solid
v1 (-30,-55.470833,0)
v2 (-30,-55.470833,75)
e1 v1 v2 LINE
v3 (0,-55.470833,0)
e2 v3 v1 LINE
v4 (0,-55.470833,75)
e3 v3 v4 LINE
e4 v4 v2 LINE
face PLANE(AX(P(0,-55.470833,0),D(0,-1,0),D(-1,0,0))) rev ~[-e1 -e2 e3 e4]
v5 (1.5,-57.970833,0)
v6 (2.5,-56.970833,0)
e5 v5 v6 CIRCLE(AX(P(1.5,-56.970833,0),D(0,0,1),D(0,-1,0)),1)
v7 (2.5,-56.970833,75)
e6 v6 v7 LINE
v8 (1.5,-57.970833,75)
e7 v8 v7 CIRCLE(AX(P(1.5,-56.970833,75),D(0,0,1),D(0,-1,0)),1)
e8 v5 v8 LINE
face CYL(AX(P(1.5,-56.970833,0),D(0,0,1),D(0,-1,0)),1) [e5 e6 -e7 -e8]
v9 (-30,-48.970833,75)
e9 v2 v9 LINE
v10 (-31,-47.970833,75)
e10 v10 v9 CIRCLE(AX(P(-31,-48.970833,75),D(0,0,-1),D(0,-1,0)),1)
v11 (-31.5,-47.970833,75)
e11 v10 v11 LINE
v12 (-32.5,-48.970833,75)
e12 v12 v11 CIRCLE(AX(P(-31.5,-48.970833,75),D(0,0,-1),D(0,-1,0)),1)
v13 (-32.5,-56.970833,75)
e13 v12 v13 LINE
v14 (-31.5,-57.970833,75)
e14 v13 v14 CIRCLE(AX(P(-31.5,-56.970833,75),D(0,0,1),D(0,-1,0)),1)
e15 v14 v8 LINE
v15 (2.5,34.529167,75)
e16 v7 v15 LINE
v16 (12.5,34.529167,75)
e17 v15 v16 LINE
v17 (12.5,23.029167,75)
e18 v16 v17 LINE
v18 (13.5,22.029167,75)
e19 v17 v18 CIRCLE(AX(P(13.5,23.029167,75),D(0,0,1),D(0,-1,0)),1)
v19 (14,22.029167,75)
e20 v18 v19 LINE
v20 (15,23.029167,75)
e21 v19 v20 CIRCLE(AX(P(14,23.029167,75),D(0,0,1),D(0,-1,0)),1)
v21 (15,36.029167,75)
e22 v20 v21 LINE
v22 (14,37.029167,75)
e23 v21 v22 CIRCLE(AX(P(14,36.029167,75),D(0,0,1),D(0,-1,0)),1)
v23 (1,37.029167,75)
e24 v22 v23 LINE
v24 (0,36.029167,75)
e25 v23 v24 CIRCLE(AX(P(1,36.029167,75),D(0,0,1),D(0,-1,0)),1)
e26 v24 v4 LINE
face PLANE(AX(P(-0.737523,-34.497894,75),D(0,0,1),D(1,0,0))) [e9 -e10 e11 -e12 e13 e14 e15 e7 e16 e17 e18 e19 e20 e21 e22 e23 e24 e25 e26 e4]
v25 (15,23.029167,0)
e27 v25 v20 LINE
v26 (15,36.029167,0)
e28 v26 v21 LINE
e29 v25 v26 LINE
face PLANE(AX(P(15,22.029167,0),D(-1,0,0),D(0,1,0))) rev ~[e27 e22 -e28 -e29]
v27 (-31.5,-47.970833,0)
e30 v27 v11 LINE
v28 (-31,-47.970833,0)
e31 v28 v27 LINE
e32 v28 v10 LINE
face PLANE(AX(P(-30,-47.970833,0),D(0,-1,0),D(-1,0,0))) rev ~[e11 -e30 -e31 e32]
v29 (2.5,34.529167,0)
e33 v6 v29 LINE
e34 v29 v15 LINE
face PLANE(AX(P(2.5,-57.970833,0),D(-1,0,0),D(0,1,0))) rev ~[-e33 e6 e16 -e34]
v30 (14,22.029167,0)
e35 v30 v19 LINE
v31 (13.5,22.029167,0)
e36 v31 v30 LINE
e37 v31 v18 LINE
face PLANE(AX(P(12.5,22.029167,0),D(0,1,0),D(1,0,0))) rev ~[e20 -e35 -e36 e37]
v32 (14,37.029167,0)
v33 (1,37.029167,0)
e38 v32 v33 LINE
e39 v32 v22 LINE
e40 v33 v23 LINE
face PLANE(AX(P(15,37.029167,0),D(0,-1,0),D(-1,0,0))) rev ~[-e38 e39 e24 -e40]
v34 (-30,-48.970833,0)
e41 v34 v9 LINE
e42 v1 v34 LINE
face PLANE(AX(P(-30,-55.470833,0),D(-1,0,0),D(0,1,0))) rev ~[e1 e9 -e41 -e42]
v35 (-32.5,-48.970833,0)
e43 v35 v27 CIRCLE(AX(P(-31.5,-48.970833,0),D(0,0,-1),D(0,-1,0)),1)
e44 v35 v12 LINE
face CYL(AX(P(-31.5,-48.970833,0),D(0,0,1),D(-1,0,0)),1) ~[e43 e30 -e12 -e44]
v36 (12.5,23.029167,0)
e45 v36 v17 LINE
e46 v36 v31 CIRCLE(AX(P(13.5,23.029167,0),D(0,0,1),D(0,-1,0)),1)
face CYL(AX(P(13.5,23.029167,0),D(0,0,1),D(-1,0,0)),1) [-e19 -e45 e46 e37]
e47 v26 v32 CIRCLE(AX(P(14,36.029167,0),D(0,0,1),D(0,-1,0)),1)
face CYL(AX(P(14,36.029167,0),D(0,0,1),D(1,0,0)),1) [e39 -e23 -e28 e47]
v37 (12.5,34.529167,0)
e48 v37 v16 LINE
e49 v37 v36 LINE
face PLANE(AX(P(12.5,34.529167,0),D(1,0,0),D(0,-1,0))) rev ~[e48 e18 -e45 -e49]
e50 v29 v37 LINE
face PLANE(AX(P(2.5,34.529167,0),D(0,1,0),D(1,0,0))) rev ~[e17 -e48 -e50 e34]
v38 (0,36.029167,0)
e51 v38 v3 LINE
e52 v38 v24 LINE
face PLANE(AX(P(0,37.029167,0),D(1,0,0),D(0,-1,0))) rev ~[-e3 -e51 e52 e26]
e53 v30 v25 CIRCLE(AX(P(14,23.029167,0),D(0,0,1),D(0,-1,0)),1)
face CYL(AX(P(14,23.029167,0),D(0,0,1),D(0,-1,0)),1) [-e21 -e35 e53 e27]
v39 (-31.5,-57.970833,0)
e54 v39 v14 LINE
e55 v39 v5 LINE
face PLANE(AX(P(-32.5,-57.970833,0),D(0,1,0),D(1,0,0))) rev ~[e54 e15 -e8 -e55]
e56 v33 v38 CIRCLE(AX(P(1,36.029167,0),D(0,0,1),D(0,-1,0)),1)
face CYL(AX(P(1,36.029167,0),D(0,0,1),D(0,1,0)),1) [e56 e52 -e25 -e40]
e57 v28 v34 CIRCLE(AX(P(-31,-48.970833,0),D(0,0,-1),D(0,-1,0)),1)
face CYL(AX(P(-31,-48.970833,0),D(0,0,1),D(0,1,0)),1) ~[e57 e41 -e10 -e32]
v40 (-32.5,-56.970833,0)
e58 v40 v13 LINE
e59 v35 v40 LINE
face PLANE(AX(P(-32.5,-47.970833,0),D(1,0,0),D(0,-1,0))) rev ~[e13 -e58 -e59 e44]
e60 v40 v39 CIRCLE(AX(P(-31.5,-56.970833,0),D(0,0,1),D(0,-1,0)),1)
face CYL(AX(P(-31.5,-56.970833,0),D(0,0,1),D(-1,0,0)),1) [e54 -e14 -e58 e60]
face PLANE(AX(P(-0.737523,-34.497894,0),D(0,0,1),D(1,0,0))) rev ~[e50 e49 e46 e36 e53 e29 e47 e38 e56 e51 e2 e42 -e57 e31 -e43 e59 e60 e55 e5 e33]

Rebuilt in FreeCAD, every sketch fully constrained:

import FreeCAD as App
import Part
import Sketcher

V = App.Vector


def edges_at(feature, points):
    """Names of the edges that pass closest to the given points."""
    edges = feature.Shape.Edges
    near = lambda p: min(range(len(edges)), key=lambda i: edges[i].distToShape(Part.Vertex(*p))[0])
    return sorted({f"Edge{near(p) + 1}" for p in points})

doc = App.newDocument("Part")
params = doc.addObject("Spreadsheet::Sheet", "Params")
for row, (alias, value) in enumerate([
    ("sketch1_width", "30 mm"),
    ("sketch1_width2", "35 mm"),
    ("sketch1_width3", "10 mm"),
    ("sketch1_width4", "2.5 mm"),
    ("sketch1_height", "7.5 mm"),
    ("pad1_length", "75 mm"),
    ("fillet_radius", "1 mm"),
    ("fillet2_radius", "1 mm"),
], start=1):
    params.set(f"A{row}", alias)
    params.set(f"B{row}", "=" + value)
    params.setAlias(f"B{row}", alias)

body = doc.addObject("PartDesign::Body", "Body")

sketch1 = body.newObject("Sketcher::SketchObject", "Sketch")
sketch1.AttachmentSupport = (doc.getObject("XY_Plane"), [""])
sketch1.MapMode = "FlatFace"
sketch1.addGeometry([
    Part.LineSegment(V(0, -55.5, 0), V(-30, -55.5, 0)),
    Part.LineSegment(V(-30, -55.5, 0), V(-30, -48, 0)),
    Part.LineSegment(V(-30, -48, 0), V(-32.5, -48, 0)),
    Part.LineSegment(V(-32.5, -48, 0), V(-32.5, -58, 0)),
    Part.LineSegment(V(-32.5, -58, 0), V(2.5, -58, 0)),
    Part.LineSegment(V(2.5, -58, 0), V(2.5, 34.5, 0)),
    Part.LineSegment(V(2.5, 34.5, 0), V(12.5, 34.5, 0)),
    Part.LineSegment(V(12.5, 34.5, 0), V(12.5, 22, 0)),
    Part.LineSegment(V(12.5, 22, 0), V(15, 22, 0)),
    Part.LineSegment(V(15, 22, 0), V(15, 37, 0)),
    Part.LineSegment(V(15, 37, 0), V(0, 37, 0)),
    Part.LineSegment(V(0, 37, 0), V(0, -55.5, 0)),
], False)
sketch1.addConstraint([
    Sketcher.Constraint("Coincident", 0, 2, 1, 1),
    Sketcher.Constraint("Coincident", 1, 2, 2, 1),
    Sketcher.Constraint("Coincident", 2, 2, 3, 1),
    Sketcher.Constraint("Coincident", 3, 2, 4, 1),
    Sketcher.Constraint("Coincident", 4, 2, 5, 1),
    Sketcher.Constraint("Coincident", 5, 2, 6, 1),
    Sketcher.Constraint("Coincident", 6, 2, 7, 1),
    Sketcher.Constraint("Coincident", 7, 2, 8, 1),
    Sketcher.Constraint("Coincident", 8, 2, 9, 1),
    Sketcher.Constraint("Coincident", 9, 2, 10, 1),
    Sketcher.Constraint("Coincident", 10, 2, 11, 1),
    Sketcher.Constraint("Coincident", 11, 2, 0, 1),
    Sketcher.Constraint("Horizontal", 0),
    Sketcher.Constraint("Vertical", 1),
    Sketcher.Constraint("Horizontal", 2),
    Sketcher.Constraint("Vertical", 3),
    Sketcher.Constraint("Horizontal", 4),
    Sketcher.Constraint("Vertical", 5),
    Sketcher.Constraint("Horizontal", 6),
    Sketcher.Constraint("Vertical", 7),
    Sketcher.Constraint("Horizontal", 8),
    Sketcher.Constraint("Vertical", 9),
    Sketcher.Constraint("Horizontal", 10),
    Sketcher.Constraint("Vertical", 11),
    Sketcher.Constraint("PointOnObject", 10, 2, -2),
    Sketcher.Constraint("Equal", 2, 8),
    Sketcher.Constraint("Equal", 6, 3),
    Sketcher.Constraint("Equal", 10, 9),
    Sketcher.Constraint("Equal", 5, 11),
    Sketcher.Constraint("DistanceX", 0, 2, 0, 1, 30.0),
    Sketcher.Constraint("DistanceX", 4, 1, 4, 2, 35.0),
    Sketcher.Constraint("DistanceX", 6, 1, 6, 2, 10.0),
    Sketcher.Constraint("DistanceX", 2, 2, 2, 1, 2.5),
    Sketcher.Constraint("DistanceY", 1, 1, 1, 2, 7.5),
    Sketcher.Constraint("DistanceY", 5, 1, 5, 2, 92.5),
    Sketcher.Constraint("DistanceY", 0, 2, -1, 1, 55.470833),
])
sketch1.setExpression("Constraints[29]", "Params.sketch1_width")
sketch1.setExpression("Constraints[30]", "Params.sketch1_width2")
sketch1.setExpression("Constraints[31]", "Params.sketch1_width3")
sketch1.setExpression("Constraints[32]", "Params.sketch1_width4")
sketch1.setExpression("Constraints[33]", "Params.sketch1_height")
pad1 = body.newObject("PartDesign::Pad", "Pad")
pad1.Profile = sketch1
pad1.setExpression("Length", "Params.pad1_length")
doc.recompute()

fillet = body.newObject("PartDesign::Fillet", "Fillet")
fillet.Base = (pad1, edges_at(pad1, [
    (-32.5, -57.971, 37.5),
    (2.5, -57.971, 37.5),
    (15, 37.029, 37.5),
    (0, 37.029, 37.5),
]))
fillet.setExpression("Radius", "Params.fillet_radius")
doc.recompute()

fillet2 = body.newObject("PartDesign::Fillet", "Fillet001")
fillet2.Base = (fillet, edges_at(fillet, [
    (-30, -47.971, 37.5),
    (-32.5, -47.971, 37.5),
    (15, 22.029, 37.5),
    (12.5, 22.029, 37.5),
]))
fillet2.setExpression("Radius", "Params.fillet2_radius")

doc.recompute()
